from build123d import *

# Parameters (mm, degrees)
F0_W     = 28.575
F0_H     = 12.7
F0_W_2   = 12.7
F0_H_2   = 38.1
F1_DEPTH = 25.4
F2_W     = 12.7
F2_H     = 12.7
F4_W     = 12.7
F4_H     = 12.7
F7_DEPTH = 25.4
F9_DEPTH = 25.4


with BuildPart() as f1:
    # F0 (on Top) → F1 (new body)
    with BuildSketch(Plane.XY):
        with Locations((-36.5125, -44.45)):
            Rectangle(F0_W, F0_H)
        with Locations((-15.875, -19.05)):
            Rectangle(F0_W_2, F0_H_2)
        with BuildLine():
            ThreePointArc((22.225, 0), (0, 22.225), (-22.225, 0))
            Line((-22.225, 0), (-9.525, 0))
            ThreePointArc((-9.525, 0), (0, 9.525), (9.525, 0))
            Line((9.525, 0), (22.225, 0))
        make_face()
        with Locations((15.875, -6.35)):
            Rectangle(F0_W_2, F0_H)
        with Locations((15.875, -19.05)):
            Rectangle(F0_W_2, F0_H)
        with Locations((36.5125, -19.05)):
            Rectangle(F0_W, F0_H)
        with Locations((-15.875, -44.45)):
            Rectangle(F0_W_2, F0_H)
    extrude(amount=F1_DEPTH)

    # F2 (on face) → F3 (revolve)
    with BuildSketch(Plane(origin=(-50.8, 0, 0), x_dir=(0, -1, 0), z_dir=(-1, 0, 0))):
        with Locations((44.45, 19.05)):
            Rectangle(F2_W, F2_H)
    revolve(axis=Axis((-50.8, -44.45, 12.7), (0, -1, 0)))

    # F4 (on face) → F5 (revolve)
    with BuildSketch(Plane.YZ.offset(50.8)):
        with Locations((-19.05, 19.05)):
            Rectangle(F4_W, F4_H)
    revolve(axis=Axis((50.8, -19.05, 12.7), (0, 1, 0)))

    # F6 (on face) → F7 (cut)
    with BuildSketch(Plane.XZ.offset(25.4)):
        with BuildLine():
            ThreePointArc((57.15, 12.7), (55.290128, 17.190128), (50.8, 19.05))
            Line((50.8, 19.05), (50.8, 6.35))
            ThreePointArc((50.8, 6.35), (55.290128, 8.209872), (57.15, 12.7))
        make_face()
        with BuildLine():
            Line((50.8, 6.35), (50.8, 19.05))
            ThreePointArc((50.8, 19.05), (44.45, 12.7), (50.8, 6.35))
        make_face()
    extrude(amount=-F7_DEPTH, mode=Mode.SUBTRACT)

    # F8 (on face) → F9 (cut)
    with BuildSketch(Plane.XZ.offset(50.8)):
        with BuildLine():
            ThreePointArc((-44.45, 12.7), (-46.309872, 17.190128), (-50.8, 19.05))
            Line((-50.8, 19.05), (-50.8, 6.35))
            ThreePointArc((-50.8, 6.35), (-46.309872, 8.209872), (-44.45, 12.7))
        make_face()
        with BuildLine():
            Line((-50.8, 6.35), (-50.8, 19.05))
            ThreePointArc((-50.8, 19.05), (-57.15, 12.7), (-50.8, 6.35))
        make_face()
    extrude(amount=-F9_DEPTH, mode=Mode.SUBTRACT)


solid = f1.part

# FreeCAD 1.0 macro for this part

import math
import FreeCAD as App
import Part
import Sketcher

V = App.Vector
Q = App.Units.Quantity


def add_polygon(sketch, points):
    """Adds a closed chain of lines whose ends are joined by coincident constraints."""
    first, n = sketch.GeometryCount, len(points)
    for a, b in zip(points, points[1:] + points[:1]):
        sketch.addGeometry(Part.LineSegment(App.Vector(*a, 0), App.Vector(*b, 0)), False)
    for i in range(n):
        sketch.addConstraint(Sketcher.Constraint("Coincident", first + i, 2, first + (i + 1) % n, 1))

doc = App.newDocument("Part")
params = doc.addObject("Spreadsheet::Sheet", "Params")
for row, (alias, value) in enumerate([
    ("sketch1_height", "2 in"),
    ("sketch1_height2", "1 in"),
    ("sketch1_radius", "0.375 in"),
    ("sketch1_radius2", "0.875 in"),
    ("pad1_length", "1 in"),
    ("sketch2_width", "0.5 in"),
    ("revolution_angle", "360 deg"),
    ("sketch3_width", "0.5 in"),
    ("revolution2_angle", "360 deg"),
    ("sketch4_radius", "0.25 in"),
    ("pocket1_length", "1 in"),
    ("sketch5_radius", "0.25 in"),
    ("pocket2_length", "1 in"),
], start=1):
    params.set(f"A{row}", alias)
    params.set(f"B{row}", "=" + value)
    params.setAlias(f"B{row}", alias)

body = doc.addObject("PartDesign::Body", "Body")

sketch1 = body.newObject("Sketcher::SketchObject", "Sketch")
sketch1.AttachmentSupport = (doc.getObject("XY_Plane"), [""])
sketch1.MapMode = "FlatFace"
sketch1.addGeometry(Part.LineSegment(V(-51, -38, 0), V(-51, -51, 0)), False)
sketch1.addGeometry(Part.LineSegment(V(-51, -51, 0), V(-10, -51, 0)), False)
sketch1.addGeometry(Part.LineSegment(V(-10, -51, 0), V(-10, 0, 0)), False)
sketch1.addGeometry(Part.ArcOfCircle(Part.Circle(V(0, 0, 0), V(0, 0, 1), 10), math.radians(0), math.radians(180)), False)
sketch1.addGeometry(Part.LineSegment(V(10, 0, 0), V(10, -25, 0)), False)
sketch1.addGeometry(Part.LineSegment(V(10, -25, 0), V(51, -25, 0)), False)
sketch1.addGeometry(Part.LineSegment(V(51, -25, 0), V(51, -13, 0)), False)
sketch1.addGeometry(Part.LineSegment(V(51, -13, 0), V(22, -13, 0)), False)
sketch1.addGeometry(Part.LineSegment(V(22, -13, 0), V(22, 0, 0)), False)
sketch1.addGeometry(Part.ArcOfCircle(Part.Circle(V(0, 0, 0), V(0, 0, 1), 22), math.radians(0), math.radians(180)), False)
sketch1.addGeometry(Part.LineSegment(V(-22, 0, 0), V(-22, -38, 0)), False)
sketch1.addGeometry(Part.LineSegment(V(-22, -38, 0), V(-51, -38, 0)), False)
sketch1.addConstraint(Sketcher.Constraint("Coincident", 0, 2, 1, 1))
sketch1.addConstraint(Sketcher.Constraint("Coincident", 1, 2, 2, 1))
sketch1.addConstraint(Sketcher.Constraint("Tangent", 2, 2, 3, 2))
sketch1.addConstraint(Sketcher.Constraint("Tangent", 3, 1, 4, 1))
sketch1.addConstraint(Sketcher.Constraint("Coincident", 4, 2, 5, 1))
sketch1.addConstraint(Sketcher.Constraint("Coincident", 5, 2, 6, 1))
sketch1.addConstraint(Sketcher.Constraint("Coincident", 6, 2, 7, 1))
sketch1.addConstraint(Sketcher.Constraint("Coincident", 7, 2, 8, 1))
sketch1.addConstraint(Sketcher.Constraint("Tangent", 8, 2, 9, 1))
sketch1.addConstraint(Sketcher.Constraint("Tangent", 9, 2, 10, 1))
sketch1.addConstraint(Sketcher.Constraint("Coincident", 10, 2, 11, 1))
sketch1.addConstraint(Sketcher.Constraint("Coincident", 11, 2, 0, 1))
sketch1.addConstraint(Sketcher.Constraint("Vertical", 0))
sketch1.addConstraint(Sketcher.Constraint("Horizontal", 1))
sketch1.addConstraint(Sketcher.Constraint("Vertical", 2))
sketch1.addConstraint(Sketcher.Constraint("Vertical", 4))
sketch1.addConstraint(Sketcher.Constraint("Horizontal", 5))
sketch1.addConstraint(Sketcher.Constraint("Vertical", 6))
sketch1.addConstraint(Sketcher.Constraint("Horizontal", 7))
sketch1.addConstraint(Sketcher.Constraint("Vertical", 8))
sketch1.addConstraint(Sketcher.Constraint("Vertical", 10))
sketch1.addConstraint(Sketcher.Constraint("Horizontal", 11))
sketch1.addConstraint(Sketcher.Constraint("Coincident", 3, 3, -1, 1))
sketch1.addConstraint(Sketcher.Constraint("Coincident", 9, 3, -1, 1))
sketch1.addConstraint(Sketcher.Constraint("Equal", 1, 5))
sketch1.addConstraint(Sketcher.Constraint("Equal", 0, 6))
sketch1.addConstraint(Sketcher.Constraint("Equal", 6, 8))
sketch1.addConstraint(Sketcher.Constraint("DistanceY", 2, 1, 2, 2, Q("2 in")))
sketch1.addConstraint(Sketcher.Constraint("DistanceY", 4, 2, 4, 1, Q("1 in")))
sketch1.addConstraint(Sketcher.Constraint("DistanceX", 0, 2, -1, 1, Q("2 in")))
sketch1.addConstraint(Sketcher.Constraint("Radius", 3, Q("0.375 in")))
sketch1.addConstraint(Sketcher.Constraint("Radius", 9, Q("0.875 in")))
sketch1.setExpression("Constraints[27]", "Params.sketch1_height")
sketch1.setExpression("Constraints[28]", "Params.sketch1_height2")
sketch1.setExpression("Constraints[30]", "Params.sketch1_radius")
sketch1.setExpression("Constraints[31]", "Params.sketch1_radius2")
pad1 = body.newObject("PartDesign::Pad", "Pad")
pad1.Profile = sketch1
pad1.setExpression("Length", "Params.pad1_length")

sketch2 = body.newObject("Sketcher::SketchObject", "Sketch001")
sketch2.AttachmentSupport = (doc.getObject("YZ_Plane"), [""])
sketch2.MapMode = "FlatFace"
sketch2.AttachmentOffset = App.Placement(V(0, 0, -2 * 25.4), App.Rotation())
add_polygon(sketch2, [(-38, 25), (-38, 13), (-51, 13), (-51, 25)])
sketch2.addGeometry(Part.LineSegment(V(-38, 13, 0), V(-51, 13, 0)), True)
sketch2.addConstraint(Sketcher.Constraint("Vertical", 0))
sketch2.addConstraint(Sketcher.Constraint("Horizontal", 1))
sketch2.addConstraint(Sketcher.Constraint("Vertical", 2))
sketch2.addConstraint(Sketcher.Constraint("Horizontal", 3))
sketch2.addConstraint(Sketcher.Constraint("Horizontal", 4))
sketch2.addConstraint(Sketcher.Constraint("Coincident", 4, 1, 0, 2))
sketch2.addConstraint(Sketcher.Constraint("Vertical", 2, 2, 4, 2))
sketch2.addConstraint(Sketcher.Constraint("Equal", 4, 0))
sketch2.addConstraint(Sketcher.Constraint("DistanceX", 1, 2, 1, 1, Q("0.5 in")))
sketch2.addConstraint(Sketcher.Constraint("DistanceX", 1, 2, -1, 1, Q("2 in")))
sketch2.addConstraint(Sketcher.Constraint("DistanceY", -1, 1, 2, 2, Q("1 in")))
sketch2.setExpression("Constraints[12]", "Params.sketch2_width")
revolution = body.newObject("PartDesign::Revolution", "Revolution")
revolution.Profile = sketch2
revolution.ReferenceAxis = (sketch2, ["Axis0"])
revolution.setExpression("Angle", "Params.revolution_angle")

sketch3 = body.newObject("Sketcher::SketchObject", "Sketch002")
sketch3.AttachmentSupport = (doc.getObject("YZ_Plane"), [""])
sketch3.MapMode = "FlatFace"
sketch3.AttachmentOffset = App.Placement(V(0, 0, 2 * 25.4), App.Rotation())
add_polygon(sketch3, [(-25, 25), (-25, 13), (-13, 13), (-13, 25)])
sketch3.addGeometry(Part.LineSegment(V(-25, 13, 0), V(-13, 13, 0)), True)
sketch3.addConstraint(Sketcher.Constraint("Vertical", 0))
sketch3.addConstraint(Sketcher.Constraint("Horizontal", 1))
sketch3.addConstraint(Sketcher.Constraint("Vertical", 2))
sketch3.addConstraint(Sketcher.Constraint("Horizontal", 3))
sketch3.addConstraint(Sketcher.Constraint("Horizontal", 4))
sketch3.addConstraint(Sketcher.Constraint("Coincident", 4, 1, 0, 2))
sketch3.addConstraint(Sketcher.Constraint("Vertical", 2, 2, 4, 2))
sketch3.addConstraint(Sketcher.Constraint("Equal", 4, 0))
sketch3.addConstraint(Sketcher.Constraint("DistanceX", 1, 1, 1, 2, Q("0.5 in")))
sketch3.addConstraint(Sketcher.Constraint("DistanceX", 0, 2, -1, 1, Q("1 in")))
sketch3.addConstraint(Sketcher.Constraint("DistanceY", -1, 1, 2, 2, Q("1 in")))
sketch3.setExpression("Constraints[12]", "Params.sketch3_width")
revolution2 = body.newObject("PartDesign::Revolution", "Revolution001")
revolution2.Profile = sketch3
revolution2.ReferenceAxis = (sketch3, ["Axis0"])
revolution2.setExpression("Angle", "Params.revolution2_angle")

sketch4 = body.newObject("Sketcher::SketchObject", "Sketch003")
sketch4.AttachmentSupport = (doc.getObject("XZ_Plane"), [""])
sketch4.MapMode = "FlatFace"
sketch4.AttachmentOffset = App.Placement(V(0, 0, 1 * 25.4), App.Rotation())
sketch4.addGeometry(Part.ArcOfCircle(Part.Circle(V(51, 13, 0), V(0, 0, 1), 6), math.radians(0), math.radians(90)), False)
sketch4.addGeometry(Part.ArcOfCircle(Part.Circle(V(51, 13, 0), V(0, 0, 1), 6), math.radians(90), math.radians(270)), False)
sketch4.addGeometry(Part.ArcOfCircle(Part.Circle(V(51, 13, 0), V(0, 0, 1), 6), math.radians(-90), math.radians(0)), False)
sketch4.addConstraint(Sketcher.Constraint("Tangent", 0, 2, 1, 1))
sketch4.addConstraint(Sketcher.Constraint("Tangent", 1, 2, 2, 1))
sketch4.addConstraint(Sketcher.Constraint("Tangent", 2, 2, 0, 1))
sketch4.addConstraint(Sketcher.Constraint("Horizontal", 1, 3, 2, 2))
sketch4.addConstraint(Sketcher.Constraint("Vertical", 2, 3, 0, 2))
sketch4.addConstraint(Sketcher.Constraint("Vertical", 0, 2, 1, 2))
sketch4.addConstraint(Sketcher.Constraint("Radius", 0, Q("0.25 in")))
sketch4.addConstraint(Sketcher.Constraint("DistanceX", -1, 1, 0, 3, Q("2 in")))
sketch4.addConstraint(Sketcher.Constraint("DistanceY", -1, 1, 0, 3, Q("0.5 in")))
sketch4.setExpression("Constraints[6]", "Params.sketch4_radius")
pocket1 = body.newObject("PartDesign::Pocket", "Pocket")
pocket1.Profile = sketch4
pocket1.setExpression("Length", "Params.pocket1_length")

sketch5 = body.newObject("Sketcher::SketchObject", "Sketch004")
sketch5.AttachmentSupport = (doc.getObject("XZ_Plane"), [""])
sketch5.MapMode = "FlatFace"
sketch5.AttachmentOffset = App.Placement(V(0, 0, 2 * 25.4), App.Rotation())
sketch5.addGeometry(Part.ArcOfCircle(Part.Circle(V(-51, 13, 0), V(0, 0, 1), 6), math.radians(0), math.radians(90)), False)
sketch5.addGeometry(Part.ArcOfCircle(Part.Circle(V(-51, 13, 0), V(0, 0, 1), 6), math.radians(90), math.radians(270)), False)
sketch5.addGeometry(Part.ArcOfCircle(Part.Circle(V(-51, 13, 0), V(0, 0, 1), 6), math.radians(-90), math.radians(0)), False)
sketch5.addConstraint(Sketcher.Constraint("Tangent", 0, 2, 1, 1))
sketch5.addConstraint(Sketcher.Constraint("Tangent", 1, 2, 2, 1))
sketch5.addConstraint(Sketcher.Constraint("Tangent", 2, 2, 0, 1))
sketch5.addConstraint(Sketcher.Constraint("Horizontal", 1, 3, 2, 2))
sketch5.addConstraint(Sketcher.Constraint("Vertical", 2, 3, 0, 2))
sketch5.addConstraint(Sketcher.Constraint("Vertical", 0, 2, 1, 2))
sketch5.addConstraint(Sketcher.Constraint("Radius", 0, Q("0.25 in")))
sketch5.addConstraint(Sketcher.Constraint("DistanceX", 0, 3, -1, 1, Q("2 in")))
sketch5.addConstraint(Sketcher.Constraint("DistanceY", -1, 1, 0, 3, Q("0.5 in")))
sketch5.setExpression("Constraints[6]", "Params.sketch5_radius")
pocket2 = body.newObject("PartDesign::Pocket", "Pocket001")
pocket2.Profile = sketch5
pocket2.setExpression("Length", "Params.pocket2_length")

doc.recompute()
